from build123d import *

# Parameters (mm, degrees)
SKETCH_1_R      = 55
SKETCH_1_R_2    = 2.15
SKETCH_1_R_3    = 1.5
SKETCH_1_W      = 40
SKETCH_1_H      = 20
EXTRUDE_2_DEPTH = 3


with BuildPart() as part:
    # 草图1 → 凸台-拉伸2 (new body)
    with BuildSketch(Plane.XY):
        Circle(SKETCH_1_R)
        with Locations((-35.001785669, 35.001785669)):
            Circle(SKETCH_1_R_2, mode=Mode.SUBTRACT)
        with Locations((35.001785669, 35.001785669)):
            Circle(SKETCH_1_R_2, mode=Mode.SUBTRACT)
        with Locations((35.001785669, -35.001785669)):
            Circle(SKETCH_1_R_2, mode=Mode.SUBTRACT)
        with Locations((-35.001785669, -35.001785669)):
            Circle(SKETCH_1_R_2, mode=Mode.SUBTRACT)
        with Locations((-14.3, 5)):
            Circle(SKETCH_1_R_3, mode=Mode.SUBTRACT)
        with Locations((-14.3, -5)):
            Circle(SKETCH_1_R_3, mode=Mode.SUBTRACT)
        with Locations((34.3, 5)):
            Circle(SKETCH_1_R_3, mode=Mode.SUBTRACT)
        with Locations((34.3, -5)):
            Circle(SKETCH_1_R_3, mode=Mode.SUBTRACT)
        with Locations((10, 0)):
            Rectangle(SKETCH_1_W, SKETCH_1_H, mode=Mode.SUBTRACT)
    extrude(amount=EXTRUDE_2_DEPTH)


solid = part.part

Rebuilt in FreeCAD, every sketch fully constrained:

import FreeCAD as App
import Part
import Sketcher

V = App.Vector
Q = App.Units.Quantity


def add_polygon(sketch, points):
    """Adds a closed chain of lines whose ends are joined by coincident constraints."""
    first, n = sketch.GeometryCount, len(points)
    for a, b in zip(points, points[1:] + points[:1]):
        sketch.addGeometry(Part.LineSegment(App.Vector(*a, 0), App.Vector(*b, 0)), False)
    for i in range(n):
        sketch.addConstraint(Sketcher.Constraint("Coincident", first + i, 2, first + (i + 1) % n, 1))

doc = App.newDocument("Part")
params = doc.addObject("Spreadsheet::Sheet", "Params")
for row, (alias, value) in enumerate([
    ("sketch1_diameter", "110 mm"),
    ("sketch1_diameter2", "3 mm"),
    ("sketch1_diameter3", "4.3 mm"),
    ("sketch1_width", "40 mm"),
    ("sketch1_height", "20 mm"),
    ("pad1_length", "3 mm"),
], start=1):
    params.set(f"A{row}", alias)
    params.set(f"B{row}", "=" + value)
    params.setAlias(f"B{row}", alias)

body = doc.addObject("PartDesign::Body", "Body")

sketch1 = body.newObject("Sketcher::SketchObject", "Sketch")
sketch1.AttachmentSupport = (doc.getObject("XY_Plane"), [""])
sketch1.MapMode = "FlatFace"
sketch1.addGeometry(Part.Circle(V(0, 0, 0), V(0, 0, 1), 55), False)
sketch1.addGeometry(Part.Circle(V(-35, -35, 0), V(0, 0, 1), 2.1), False)
sketch1.addGeometry(Part.Circle(V(-14.3, -5, 0), V(0, 0, 1), 1.5), False)
sketch1.addGeometry(Part.Circle(V(35, -35, 0), V(0, 0, 1), 2.1), False)
sketch1.addGeometry(Part.Circle(V(34.3, -5, 0), V(0, 0, 1), 1.5), False)
sketch1.addGeometry(Part.Circle(V(-14.3, 5, 0), V(0, 0, 1), 1.5), False)
sketch1.addGeometry(Part.Circle(V(-35, 35, 0), V(0, 0, 1), 2.1), False)
add_polygon(sketch1, [(30, -10), (-10, -10), (-10, 10), (30, 10)])
sketch1.addGeometry(Part.Circle(V(34.3, 5, 0), V(0, 0, 1), 1.5), False)
sketch1.addGeometry(Part.Circle(V(35, 35, 0), V(0, 0, 1), 2.1), False)
sketch1.addConstraint([
    Sketcher.Constraint("Horizontal", 7),
    Sketcher.Constraint("Vertical", 8),
    Sketcher.Constraint("Horizontal", 9),
    Sketcher.Constraint("Vertical", 10),
    Sketcher.Constraint("Coincident", 0, 3, -1, 1),
    Sketcher.Constraint("Equal", 1, 3),
    Sketcher.Constraint("Equal", 2, 4),
    Sketcher.Constraint("Equal", 4, 5),
    Sketcher.Constraint("Equal", 3, 6),
    Sketcher.Constraint("Equal", 5, 11),
    Sketcher.Constraint("Equal", 6, 12),
    Sketcher.Constraint("Symmetric", 3, 3, 6, 3, -1, 1),
    Sketcher.Constraint("Symmetric", 1, 3, 12, 3, -1, 1),
    Sketcher.Constraint("Symmetric", 1, 3, 3, 3, -2),
    Sketcher.Constraint("Symmetric", 2, 3, 5, 3, -1),
    Sketcher.Constraint("Symmetric", 4, 3, 11, 3, -1),
    Sketcher.Constraint("Horizontal", 2, 3, 4, 3),
    Sketcher.Constraint("Diameter", 0, Q("110 mm")),
    Sketcher.Constraint("Diameter", 2, Q("3 mm")),
    Sketcher.Constraint("Diameter", 1, Q("4.3 mm")),
    Sketcher.Constraint("DistanceX", 7, 2, 7, 1, Q("40 mm")),
    Sketcher.Constraint("DistanceY", 8, 1, 8, 2, Q("20 mm")),
    Sketcher.Constraint("DistanceY", 2, 3, -1, 1, Q("5 mm")),
    Sketcher.Constraint("DistanceX", 7, 2, -1, 1, Q("10 mm")),
    Sketcher.Constraint("DistanceY", 7, 2, -1, 1, Q("10 mm")),
    Sketcher.Constraint("DistanceX", 2, 3, -1, 1, Q("14.3 mm")),
    Sketcher.Constraint("DistanceX", -1, 1, 4, 3, Q("34.3 mm")),
    Sketcher.Constraint("DistanceX", 1, 3, 3, 3, Q("70.003571 mm")),
    Sketcher.Constraint("DistanceY", 1, 3, 6, 3, Q("70.003571 mm")),
])
sketch1.setExpression("Constraints[21]", "Params.sketch1_diameter")
sketch1.setExpression("Constraints[22]", "Params.sketch1_diameter2")
sketch1.setExpression("Constraints[23]", "Params.sketch1_diameter3")
sketch1.setExpression("Constraints[24]", "Params.sketch1_width")
sketch1.setExpression("Constraints[25]", "Params.sketch1_height")
pad1 = body.newObject("PartDesign::Pad", "Pad")
pad1.Profile = sketch1
pad1.setExpression("Length", "Params.pad1_length")

doc.recompute()
